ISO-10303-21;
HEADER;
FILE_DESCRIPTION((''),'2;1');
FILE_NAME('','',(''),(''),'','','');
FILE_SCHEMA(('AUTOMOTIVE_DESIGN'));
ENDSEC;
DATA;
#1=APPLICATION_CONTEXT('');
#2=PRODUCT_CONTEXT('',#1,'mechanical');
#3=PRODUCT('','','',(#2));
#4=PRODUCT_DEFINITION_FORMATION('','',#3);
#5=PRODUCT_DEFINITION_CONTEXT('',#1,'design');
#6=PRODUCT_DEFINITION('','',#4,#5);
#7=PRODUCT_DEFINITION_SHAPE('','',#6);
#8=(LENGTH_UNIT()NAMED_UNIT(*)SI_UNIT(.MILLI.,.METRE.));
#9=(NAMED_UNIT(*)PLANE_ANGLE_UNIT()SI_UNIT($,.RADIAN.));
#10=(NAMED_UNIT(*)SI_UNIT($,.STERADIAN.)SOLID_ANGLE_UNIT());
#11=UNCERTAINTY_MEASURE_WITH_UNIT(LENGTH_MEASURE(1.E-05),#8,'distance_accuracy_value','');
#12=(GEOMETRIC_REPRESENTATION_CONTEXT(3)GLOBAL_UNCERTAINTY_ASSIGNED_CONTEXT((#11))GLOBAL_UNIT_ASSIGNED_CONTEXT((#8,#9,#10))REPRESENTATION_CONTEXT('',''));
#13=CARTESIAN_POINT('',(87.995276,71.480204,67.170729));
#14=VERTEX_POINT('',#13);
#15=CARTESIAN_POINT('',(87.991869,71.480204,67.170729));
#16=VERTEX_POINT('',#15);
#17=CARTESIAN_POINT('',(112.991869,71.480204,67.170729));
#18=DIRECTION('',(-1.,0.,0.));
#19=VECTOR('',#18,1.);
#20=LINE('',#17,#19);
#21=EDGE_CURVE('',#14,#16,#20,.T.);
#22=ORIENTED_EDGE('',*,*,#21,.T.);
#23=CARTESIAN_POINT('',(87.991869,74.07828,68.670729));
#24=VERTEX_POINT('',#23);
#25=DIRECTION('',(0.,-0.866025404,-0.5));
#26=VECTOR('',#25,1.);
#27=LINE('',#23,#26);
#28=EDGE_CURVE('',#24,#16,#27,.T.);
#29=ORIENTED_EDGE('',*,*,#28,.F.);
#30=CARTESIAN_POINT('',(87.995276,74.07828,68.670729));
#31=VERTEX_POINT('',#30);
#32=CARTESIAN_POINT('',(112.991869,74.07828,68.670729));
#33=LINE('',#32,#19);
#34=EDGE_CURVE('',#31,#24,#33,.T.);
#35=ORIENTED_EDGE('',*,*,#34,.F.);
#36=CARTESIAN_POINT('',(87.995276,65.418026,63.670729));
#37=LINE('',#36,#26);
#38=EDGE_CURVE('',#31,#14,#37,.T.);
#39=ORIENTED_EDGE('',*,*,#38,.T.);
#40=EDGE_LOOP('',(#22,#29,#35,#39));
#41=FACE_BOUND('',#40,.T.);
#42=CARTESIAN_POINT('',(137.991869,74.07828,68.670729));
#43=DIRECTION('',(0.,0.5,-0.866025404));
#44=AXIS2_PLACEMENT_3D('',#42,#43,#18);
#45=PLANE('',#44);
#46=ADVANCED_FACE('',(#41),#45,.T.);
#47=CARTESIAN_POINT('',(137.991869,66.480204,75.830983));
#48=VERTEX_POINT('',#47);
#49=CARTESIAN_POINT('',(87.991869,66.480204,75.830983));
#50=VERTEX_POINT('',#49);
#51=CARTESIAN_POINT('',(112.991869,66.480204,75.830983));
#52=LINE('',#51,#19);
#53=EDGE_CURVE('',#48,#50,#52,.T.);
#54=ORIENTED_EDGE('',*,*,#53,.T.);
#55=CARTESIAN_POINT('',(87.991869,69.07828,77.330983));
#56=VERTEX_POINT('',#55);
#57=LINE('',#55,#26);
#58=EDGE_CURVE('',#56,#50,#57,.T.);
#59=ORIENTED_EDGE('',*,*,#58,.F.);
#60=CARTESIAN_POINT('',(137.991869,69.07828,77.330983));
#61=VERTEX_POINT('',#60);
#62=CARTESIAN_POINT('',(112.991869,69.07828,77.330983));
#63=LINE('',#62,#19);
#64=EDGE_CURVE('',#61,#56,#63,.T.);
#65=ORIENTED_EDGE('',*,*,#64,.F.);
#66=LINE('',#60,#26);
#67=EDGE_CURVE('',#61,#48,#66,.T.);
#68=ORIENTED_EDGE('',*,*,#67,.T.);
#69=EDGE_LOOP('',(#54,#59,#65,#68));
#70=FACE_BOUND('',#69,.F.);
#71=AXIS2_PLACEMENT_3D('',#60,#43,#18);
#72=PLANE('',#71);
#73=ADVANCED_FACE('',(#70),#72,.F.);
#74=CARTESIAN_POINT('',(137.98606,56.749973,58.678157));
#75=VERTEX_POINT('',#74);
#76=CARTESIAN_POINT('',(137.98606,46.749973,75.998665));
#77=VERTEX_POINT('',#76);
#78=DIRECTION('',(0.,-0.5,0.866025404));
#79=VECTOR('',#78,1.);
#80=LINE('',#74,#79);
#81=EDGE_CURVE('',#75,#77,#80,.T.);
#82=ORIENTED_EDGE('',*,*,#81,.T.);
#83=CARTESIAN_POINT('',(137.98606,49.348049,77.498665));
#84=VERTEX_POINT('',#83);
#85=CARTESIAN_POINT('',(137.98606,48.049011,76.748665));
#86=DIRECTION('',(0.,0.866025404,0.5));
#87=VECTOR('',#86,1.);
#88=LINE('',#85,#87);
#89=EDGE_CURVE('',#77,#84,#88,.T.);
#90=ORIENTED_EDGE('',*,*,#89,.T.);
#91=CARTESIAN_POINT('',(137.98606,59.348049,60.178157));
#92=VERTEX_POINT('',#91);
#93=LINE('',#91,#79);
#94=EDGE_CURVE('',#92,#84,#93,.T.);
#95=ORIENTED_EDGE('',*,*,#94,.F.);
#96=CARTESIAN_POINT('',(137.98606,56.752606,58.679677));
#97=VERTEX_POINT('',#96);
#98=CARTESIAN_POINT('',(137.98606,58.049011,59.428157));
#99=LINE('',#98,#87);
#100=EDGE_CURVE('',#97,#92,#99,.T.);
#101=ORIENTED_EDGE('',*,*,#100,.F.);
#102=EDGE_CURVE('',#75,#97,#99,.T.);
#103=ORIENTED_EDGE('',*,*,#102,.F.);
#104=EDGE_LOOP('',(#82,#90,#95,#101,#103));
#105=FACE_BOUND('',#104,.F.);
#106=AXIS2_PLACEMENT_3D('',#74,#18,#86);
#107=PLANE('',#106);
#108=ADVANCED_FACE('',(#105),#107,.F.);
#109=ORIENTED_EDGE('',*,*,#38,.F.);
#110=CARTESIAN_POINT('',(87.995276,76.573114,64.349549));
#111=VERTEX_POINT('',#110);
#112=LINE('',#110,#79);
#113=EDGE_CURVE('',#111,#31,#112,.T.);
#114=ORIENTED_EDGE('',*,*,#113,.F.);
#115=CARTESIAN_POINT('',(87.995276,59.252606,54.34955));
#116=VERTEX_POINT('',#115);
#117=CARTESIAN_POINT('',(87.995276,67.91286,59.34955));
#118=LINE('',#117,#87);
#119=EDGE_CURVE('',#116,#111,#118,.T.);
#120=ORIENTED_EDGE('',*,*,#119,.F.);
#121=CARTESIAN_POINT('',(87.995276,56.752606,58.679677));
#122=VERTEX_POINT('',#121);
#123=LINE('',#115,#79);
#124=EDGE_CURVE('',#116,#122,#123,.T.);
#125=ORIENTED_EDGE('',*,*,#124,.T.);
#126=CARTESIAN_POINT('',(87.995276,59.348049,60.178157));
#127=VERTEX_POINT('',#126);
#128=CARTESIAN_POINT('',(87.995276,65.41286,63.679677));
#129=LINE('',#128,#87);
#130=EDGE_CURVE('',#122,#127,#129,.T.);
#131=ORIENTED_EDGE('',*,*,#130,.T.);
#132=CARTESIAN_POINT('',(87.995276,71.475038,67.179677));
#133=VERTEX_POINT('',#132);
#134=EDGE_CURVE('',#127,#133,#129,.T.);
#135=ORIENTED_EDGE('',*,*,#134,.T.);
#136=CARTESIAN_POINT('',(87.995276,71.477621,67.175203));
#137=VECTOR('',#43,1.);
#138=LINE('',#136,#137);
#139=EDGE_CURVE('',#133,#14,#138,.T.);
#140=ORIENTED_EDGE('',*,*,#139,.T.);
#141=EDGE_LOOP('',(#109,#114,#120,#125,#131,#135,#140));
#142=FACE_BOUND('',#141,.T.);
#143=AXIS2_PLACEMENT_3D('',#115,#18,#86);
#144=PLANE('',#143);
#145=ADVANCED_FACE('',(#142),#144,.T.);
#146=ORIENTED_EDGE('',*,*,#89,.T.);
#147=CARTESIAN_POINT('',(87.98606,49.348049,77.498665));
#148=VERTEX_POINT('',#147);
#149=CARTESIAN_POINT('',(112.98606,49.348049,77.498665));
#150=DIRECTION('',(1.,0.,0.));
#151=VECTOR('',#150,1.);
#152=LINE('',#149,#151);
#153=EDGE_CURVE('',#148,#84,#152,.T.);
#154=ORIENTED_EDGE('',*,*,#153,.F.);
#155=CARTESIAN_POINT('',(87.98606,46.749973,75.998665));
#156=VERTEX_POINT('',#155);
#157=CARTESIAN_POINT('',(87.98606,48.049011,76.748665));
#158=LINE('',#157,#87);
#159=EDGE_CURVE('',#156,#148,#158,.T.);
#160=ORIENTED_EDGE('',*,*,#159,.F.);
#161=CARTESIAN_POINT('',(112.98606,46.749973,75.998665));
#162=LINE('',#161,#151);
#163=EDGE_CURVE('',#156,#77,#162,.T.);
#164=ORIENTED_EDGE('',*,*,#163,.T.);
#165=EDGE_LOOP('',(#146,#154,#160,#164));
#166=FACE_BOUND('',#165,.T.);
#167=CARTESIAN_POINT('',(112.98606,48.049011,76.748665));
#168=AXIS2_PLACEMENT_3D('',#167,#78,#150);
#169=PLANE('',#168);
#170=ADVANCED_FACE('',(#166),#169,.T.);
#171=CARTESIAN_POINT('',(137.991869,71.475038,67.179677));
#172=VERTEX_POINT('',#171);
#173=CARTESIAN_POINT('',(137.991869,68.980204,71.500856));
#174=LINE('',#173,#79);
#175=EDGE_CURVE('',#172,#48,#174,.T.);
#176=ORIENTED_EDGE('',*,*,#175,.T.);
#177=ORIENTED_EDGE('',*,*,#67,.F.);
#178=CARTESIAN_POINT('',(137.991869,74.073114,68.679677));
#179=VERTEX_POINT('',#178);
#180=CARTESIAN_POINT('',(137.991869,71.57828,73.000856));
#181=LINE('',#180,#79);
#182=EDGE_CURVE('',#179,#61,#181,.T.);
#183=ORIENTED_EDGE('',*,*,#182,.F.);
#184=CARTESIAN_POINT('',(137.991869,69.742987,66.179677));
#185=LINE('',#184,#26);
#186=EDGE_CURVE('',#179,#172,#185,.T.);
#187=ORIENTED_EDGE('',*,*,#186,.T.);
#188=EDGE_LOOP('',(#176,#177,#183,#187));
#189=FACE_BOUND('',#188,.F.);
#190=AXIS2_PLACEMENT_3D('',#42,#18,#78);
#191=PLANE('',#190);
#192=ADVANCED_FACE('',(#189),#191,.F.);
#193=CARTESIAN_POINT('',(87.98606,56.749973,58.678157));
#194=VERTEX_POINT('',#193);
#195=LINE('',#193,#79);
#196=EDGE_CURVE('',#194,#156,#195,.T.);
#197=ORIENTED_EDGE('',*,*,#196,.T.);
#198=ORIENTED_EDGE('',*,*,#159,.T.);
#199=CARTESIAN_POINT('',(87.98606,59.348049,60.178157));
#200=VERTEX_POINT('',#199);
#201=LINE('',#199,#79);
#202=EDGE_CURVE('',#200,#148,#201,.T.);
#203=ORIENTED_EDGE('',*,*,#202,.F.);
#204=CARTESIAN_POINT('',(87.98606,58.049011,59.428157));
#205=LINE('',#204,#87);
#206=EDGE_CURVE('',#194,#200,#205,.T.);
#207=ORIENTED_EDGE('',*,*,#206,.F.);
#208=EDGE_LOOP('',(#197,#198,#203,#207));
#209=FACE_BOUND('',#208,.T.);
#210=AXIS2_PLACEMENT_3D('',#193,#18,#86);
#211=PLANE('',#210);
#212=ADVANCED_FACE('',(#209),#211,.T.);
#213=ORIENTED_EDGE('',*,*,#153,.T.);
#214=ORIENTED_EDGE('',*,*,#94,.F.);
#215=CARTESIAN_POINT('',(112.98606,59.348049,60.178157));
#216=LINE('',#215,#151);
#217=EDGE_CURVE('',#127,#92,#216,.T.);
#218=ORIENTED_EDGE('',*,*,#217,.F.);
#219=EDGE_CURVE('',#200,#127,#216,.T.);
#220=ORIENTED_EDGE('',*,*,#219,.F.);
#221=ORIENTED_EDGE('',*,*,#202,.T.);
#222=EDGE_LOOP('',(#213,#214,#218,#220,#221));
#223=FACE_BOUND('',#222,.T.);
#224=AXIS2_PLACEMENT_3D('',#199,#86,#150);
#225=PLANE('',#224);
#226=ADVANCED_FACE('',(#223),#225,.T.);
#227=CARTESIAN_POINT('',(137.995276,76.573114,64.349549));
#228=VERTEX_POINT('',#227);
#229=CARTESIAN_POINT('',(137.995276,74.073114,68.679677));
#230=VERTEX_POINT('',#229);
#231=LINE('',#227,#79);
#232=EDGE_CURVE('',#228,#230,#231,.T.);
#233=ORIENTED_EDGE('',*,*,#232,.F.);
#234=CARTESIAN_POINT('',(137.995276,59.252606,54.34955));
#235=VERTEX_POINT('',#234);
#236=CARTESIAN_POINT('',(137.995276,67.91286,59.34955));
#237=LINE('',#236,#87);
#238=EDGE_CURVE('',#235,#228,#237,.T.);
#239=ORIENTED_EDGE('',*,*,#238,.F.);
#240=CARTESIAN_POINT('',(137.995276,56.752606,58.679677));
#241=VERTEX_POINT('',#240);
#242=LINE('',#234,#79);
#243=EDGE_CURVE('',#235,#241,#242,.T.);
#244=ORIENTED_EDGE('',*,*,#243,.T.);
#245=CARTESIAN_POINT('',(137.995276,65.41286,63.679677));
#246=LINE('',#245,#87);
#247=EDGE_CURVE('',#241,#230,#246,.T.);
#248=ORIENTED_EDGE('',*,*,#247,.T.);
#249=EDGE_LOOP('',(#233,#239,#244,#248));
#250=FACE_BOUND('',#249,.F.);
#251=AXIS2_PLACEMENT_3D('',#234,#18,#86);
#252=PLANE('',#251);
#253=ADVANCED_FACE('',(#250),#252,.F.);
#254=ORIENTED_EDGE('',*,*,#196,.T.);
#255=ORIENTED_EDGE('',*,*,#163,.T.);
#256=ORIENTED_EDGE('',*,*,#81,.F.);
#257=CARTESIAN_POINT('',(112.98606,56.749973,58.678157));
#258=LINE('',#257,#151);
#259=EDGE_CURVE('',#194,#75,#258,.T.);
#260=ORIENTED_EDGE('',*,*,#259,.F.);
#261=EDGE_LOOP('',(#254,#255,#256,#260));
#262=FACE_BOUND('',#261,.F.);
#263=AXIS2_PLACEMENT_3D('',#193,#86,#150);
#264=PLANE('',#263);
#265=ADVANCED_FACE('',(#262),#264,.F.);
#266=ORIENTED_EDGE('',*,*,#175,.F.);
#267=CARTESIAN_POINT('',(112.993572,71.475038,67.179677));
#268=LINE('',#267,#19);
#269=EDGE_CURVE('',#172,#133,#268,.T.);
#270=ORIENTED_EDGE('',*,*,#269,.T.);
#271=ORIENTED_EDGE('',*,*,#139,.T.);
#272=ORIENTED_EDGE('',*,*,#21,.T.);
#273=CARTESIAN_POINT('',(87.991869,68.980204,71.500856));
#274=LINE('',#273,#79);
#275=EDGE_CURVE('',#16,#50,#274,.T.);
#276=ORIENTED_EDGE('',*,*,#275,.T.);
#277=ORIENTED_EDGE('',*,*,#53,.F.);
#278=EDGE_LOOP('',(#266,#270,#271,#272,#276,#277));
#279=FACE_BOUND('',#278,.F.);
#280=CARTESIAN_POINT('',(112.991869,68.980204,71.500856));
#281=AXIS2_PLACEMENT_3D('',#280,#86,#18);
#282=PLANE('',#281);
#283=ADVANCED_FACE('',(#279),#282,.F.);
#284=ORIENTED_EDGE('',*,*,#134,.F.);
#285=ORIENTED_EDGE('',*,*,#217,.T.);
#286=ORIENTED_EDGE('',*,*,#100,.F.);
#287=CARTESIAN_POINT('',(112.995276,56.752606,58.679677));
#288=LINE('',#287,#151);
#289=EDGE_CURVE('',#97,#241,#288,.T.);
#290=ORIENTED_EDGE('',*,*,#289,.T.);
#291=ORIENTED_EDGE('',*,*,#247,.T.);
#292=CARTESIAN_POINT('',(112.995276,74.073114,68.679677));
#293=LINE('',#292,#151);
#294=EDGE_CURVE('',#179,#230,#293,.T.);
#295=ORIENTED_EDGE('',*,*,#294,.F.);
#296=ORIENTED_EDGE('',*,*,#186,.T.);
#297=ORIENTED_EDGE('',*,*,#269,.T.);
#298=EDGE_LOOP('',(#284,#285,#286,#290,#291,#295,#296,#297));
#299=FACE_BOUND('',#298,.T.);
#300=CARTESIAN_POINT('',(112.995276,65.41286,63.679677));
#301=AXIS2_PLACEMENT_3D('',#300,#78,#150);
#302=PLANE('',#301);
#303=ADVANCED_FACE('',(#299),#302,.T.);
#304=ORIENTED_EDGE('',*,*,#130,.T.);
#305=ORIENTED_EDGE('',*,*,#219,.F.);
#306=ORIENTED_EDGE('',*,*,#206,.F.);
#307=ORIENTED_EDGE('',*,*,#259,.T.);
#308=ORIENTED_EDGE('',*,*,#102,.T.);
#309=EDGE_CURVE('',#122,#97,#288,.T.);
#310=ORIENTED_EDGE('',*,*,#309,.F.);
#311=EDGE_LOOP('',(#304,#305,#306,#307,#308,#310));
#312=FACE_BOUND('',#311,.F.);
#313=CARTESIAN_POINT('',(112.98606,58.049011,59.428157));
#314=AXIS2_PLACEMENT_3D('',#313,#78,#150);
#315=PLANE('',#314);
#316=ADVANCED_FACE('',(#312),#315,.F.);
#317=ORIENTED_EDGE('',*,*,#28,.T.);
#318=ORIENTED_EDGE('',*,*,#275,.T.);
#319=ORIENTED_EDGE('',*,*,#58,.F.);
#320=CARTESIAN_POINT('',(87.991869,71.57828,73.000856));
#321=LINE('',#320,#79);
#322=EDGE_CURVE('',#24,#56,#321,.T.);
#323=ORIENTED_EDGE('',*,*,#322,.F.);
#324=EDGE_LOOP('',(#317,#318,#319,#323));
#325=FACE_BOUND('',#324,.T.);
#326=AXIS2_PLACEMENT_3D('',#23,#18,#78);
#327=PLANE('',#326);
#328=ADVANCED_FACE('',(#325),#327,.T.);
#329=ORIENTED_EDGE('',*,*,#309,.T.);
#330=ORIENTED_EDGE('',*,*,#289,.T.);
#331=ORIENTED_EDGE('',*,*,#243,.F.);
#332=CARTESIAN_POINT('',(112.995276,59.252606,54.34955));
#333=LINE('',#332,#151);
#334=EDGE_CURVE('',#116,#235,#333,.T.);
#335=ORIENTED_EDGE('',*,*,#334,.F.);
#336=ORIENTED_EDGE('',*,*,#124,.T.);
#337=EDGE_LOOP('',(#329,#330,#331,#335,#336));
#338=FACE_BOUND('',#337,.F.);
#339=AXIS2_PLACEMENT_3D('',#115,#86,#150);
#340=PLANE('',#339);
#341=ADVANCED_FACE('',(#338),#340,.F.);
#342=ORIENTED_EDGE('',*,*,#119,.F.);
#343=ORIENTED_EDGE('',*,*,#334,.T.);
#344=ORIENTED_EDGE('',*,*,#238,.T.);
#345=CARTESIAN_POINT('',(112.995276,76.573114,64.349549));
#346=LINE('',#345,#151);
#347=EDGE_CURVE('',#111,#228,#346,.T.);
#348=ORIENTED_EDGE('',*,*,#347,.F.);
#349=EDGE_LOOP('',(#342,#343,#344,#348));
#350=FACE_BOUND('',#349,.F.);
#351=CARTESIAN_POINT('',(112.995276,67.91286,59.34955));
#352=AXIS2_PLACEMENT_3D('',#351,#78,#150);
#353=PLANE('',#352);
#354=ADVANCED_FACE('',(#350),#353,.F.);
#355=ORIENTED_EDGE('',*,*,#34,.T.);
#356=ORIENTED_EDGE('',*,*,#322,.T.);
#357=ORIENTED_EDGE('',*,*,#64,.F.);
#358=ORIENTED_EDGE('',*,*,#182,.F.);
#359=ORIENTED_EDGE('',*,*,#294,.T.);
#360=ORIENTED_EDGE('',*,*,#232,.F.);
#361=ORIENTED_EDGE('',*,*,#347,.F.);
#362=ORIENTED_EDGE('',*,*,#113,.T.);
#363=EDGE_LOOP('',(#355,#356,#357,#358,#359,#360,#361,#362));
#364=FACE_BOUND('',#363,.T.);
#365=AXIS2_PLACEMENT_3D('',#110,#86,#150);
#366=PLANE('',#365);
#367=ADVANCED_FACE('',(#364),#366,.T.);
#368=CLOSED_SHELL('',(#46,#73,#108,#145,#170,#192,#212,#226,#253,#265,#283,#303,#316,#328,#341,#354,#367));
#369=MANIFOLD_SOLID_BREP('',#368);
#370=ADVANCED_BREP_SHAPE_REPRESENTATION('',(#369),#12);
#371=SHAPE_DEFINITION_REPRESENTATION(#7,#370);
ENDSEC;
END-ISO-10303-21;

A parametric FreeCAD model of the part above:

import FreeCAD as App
import Part
import Sketcher

doc = App.newDocument("Part")
body = doc.addObject("PartDesign::Body", "Body")

sketch1 = body.newObject("Sketcher::SketchObject", "Sketch")
sketch1.AttachmentSupport = (doc.getObject("XY_Plane"), [""])
sketch1.MapMode = "FlatFace"
sketch1.addGeometry([
    Part.LineSegment(App.Vector(160, -114, 0), App.Vector(160, -134, 0)),
    Part.LineSegment(App.Vector(160, -134, 0), App.Vector(210, -134, 0)),
    Part.LineSegment(App.Vector(210, -134, 0), App.Vector(210, -114, 0)),
    Part.LineSegment(App.Vector(210, -114, 0), App.Vector(160, -114, 0)),
], False)
sketch1.addConstraint([
    Sketcher.Constraint("Coincident", 0, 2, 1, 1),
    Sketcher.Constraint("Coincident", 1, 2, 2, 1),
    Sketcher.Constraint("Coincident", 2, 2, 3, 1),
    Sketcher.Constraint("Coincident", 3, 2, 0, 1),
    Sketcher.Constraint("Vertical", 0),
    Sketcher.Constraint("Horizontal", 1),
    Sketcher.Constraint("Vertical", 2),
    Sketcher.Constraint("Horizontal", 3),
    Sketcher.Constraint("DistanceX", 1, 1, 1, 2, 50.0),
    Sketcher.Constraint("DistanceY", 0, 2, 0, 1, 20.0),
    Sketcher.Constraint("DistanceY", 0, 2, -1, 1, 133.914059),
    Sketcher.Constraint("DistanceX", -1, 1, 0, 2, 159.845276),
])
pad1 = body.newObject("PartDesign::Pad", "Pad")
pad1.Profile = sketch1
pad1.Length = 5

sketch2 = body.newObject("Sketcher::SketchObject", "Sketch001")
sketch2.AttachmentSupport = (doc.getObject("XY_Plane"), [""])
sketch2.MapMode = "FlatFace"
sketch2.AttachmentOffset = App.Placement(App.Vector(0, 0, 5), App.Rotation())
sketch2.addGeometry([
    Part.LineSegment(App.Vector(159.8, -130.9, 0), App.Vector(159.8, -133.9, 0)),
    Part.LineSegment(App.Vector(159.8, -133.9, 0), App.Vector(209.8, -133.9, 0)),
    Part.LineSegment(App.Vector(209.8, -133.9, 0), App.Vector(209.8, -130.9, 0)),
    Part.LineSegment(App.Vector(209.8, -130.9, 0), App.Vector(159.8, -130.9, 0)),
], False)
sketch2.addConstraint([
    Sketcher.Constraint("Coincident", 0, 2, 1, 1),
    Sketcher.Constraint("Coincident", 1, 2, 2, 1),
    Sketcher.Constraint("Coincident", 2, 2, 3, 1),
    Sketcher.Constraint("Coincident", 3, 2, 0, 1),
    Sketcher.Constraint("Vertical", 0),
    Sketcher.Constraint("Horizontal", 1),
    Sketcher.Constraint("Vertical", 2),
    Sketcher.Constraint("Horizontal", 3),
    Sketcher.Constraint("DistanceX", 1, 1, 1, 2, 50.0),
    Sketcher.Constraint("DistanceY", 0, 2, 0, 1, 3.0),
    Sketcher.Constraint("DistanceY", 0, 2, -1, 1, 133.917099),
    Sketcher.Constraint("DistanceX", -1, 1, 0, 2, 159.83606),
])
pad2 = body.newObject("PartDesign::Pad", "Pad001")
pad2.Profile = sketch2
pad2.Length = 20

sketch3 = body.newObject("Sketcher::SketchObject", "Sketch002")
sketch3.AttachmentSupport = (doc.getObject("XZ_Plane"), [""])
sketch3.MapMode = "FlatFace"
sketch3.AttachmentOffset = App.Placement(App.Vector(0, 0, 113.914059), App.Rotation())
sketch3.addGeometry([
    Part.LineSegment(App.Vector(210, 15, 0), App.Vector(210, 5, 0)),
    Part.LineSegment(App.Vector(210, 5, 0), App.Vector(160, 5, 0)),
    Part.LineSegment(App.Vector(160, 5, 0), App.Vector(160, 15, 0)),
    Part.LineSegment(App.Vector(160, 15, 0), App.Vector(210, 15, 0)),
], False)
sketch3.addConstraint([
    Sketcher.Constraint("Coincident", 0, 2, 1, 1),
    Sketcher.Constraint("Coincident", 1, 2, 2, 1),
    Sketcher.Constraint("Coincident", 2, 2, 3, 1),
    Sketcher.Constraint("Coincident", 3, 2, 0, 1),
    Sketcher.Constraint("Vertical", 0),
    Sketcher.Constraint("Horizontal", 1),
    Sketcher.Constraint("Vertical", 2),
    Sketcher.Constraint("Horizontal", 3),
    Sketcher.Constraint("DistanceX", 1, 2, 1, 1, 50.0),
    Sketcher.Constraint("DistanceY", 0, 2, 0, 1, 10.0),
    Sketcher.Constraint("DistanceX", -1, 1, 0, 2, 209.841869),
    Sketcher.Constraint("DistanceY", -1, 1, 0, 2, 4.989668),
])
pad3 = body.newObject("PartDesign::Pad", "Pad002")
pad3.Profile = sketch3
pad3.Length = 3
body2 = doc.addObject("PartDesign::Body", "Body001")
doc.recompute()

body.Placement = App.Placement(App.Vector(-71.85, 175.225583, 121.306579), App.Rotation(App.Vector(1, 0, 0), 30))
boolean = body2.newObject("PartDesign::Boolean", "Boolean")
boolean.Type = "Fuse"
boolean.addObjects([body])

doc.recompute()
